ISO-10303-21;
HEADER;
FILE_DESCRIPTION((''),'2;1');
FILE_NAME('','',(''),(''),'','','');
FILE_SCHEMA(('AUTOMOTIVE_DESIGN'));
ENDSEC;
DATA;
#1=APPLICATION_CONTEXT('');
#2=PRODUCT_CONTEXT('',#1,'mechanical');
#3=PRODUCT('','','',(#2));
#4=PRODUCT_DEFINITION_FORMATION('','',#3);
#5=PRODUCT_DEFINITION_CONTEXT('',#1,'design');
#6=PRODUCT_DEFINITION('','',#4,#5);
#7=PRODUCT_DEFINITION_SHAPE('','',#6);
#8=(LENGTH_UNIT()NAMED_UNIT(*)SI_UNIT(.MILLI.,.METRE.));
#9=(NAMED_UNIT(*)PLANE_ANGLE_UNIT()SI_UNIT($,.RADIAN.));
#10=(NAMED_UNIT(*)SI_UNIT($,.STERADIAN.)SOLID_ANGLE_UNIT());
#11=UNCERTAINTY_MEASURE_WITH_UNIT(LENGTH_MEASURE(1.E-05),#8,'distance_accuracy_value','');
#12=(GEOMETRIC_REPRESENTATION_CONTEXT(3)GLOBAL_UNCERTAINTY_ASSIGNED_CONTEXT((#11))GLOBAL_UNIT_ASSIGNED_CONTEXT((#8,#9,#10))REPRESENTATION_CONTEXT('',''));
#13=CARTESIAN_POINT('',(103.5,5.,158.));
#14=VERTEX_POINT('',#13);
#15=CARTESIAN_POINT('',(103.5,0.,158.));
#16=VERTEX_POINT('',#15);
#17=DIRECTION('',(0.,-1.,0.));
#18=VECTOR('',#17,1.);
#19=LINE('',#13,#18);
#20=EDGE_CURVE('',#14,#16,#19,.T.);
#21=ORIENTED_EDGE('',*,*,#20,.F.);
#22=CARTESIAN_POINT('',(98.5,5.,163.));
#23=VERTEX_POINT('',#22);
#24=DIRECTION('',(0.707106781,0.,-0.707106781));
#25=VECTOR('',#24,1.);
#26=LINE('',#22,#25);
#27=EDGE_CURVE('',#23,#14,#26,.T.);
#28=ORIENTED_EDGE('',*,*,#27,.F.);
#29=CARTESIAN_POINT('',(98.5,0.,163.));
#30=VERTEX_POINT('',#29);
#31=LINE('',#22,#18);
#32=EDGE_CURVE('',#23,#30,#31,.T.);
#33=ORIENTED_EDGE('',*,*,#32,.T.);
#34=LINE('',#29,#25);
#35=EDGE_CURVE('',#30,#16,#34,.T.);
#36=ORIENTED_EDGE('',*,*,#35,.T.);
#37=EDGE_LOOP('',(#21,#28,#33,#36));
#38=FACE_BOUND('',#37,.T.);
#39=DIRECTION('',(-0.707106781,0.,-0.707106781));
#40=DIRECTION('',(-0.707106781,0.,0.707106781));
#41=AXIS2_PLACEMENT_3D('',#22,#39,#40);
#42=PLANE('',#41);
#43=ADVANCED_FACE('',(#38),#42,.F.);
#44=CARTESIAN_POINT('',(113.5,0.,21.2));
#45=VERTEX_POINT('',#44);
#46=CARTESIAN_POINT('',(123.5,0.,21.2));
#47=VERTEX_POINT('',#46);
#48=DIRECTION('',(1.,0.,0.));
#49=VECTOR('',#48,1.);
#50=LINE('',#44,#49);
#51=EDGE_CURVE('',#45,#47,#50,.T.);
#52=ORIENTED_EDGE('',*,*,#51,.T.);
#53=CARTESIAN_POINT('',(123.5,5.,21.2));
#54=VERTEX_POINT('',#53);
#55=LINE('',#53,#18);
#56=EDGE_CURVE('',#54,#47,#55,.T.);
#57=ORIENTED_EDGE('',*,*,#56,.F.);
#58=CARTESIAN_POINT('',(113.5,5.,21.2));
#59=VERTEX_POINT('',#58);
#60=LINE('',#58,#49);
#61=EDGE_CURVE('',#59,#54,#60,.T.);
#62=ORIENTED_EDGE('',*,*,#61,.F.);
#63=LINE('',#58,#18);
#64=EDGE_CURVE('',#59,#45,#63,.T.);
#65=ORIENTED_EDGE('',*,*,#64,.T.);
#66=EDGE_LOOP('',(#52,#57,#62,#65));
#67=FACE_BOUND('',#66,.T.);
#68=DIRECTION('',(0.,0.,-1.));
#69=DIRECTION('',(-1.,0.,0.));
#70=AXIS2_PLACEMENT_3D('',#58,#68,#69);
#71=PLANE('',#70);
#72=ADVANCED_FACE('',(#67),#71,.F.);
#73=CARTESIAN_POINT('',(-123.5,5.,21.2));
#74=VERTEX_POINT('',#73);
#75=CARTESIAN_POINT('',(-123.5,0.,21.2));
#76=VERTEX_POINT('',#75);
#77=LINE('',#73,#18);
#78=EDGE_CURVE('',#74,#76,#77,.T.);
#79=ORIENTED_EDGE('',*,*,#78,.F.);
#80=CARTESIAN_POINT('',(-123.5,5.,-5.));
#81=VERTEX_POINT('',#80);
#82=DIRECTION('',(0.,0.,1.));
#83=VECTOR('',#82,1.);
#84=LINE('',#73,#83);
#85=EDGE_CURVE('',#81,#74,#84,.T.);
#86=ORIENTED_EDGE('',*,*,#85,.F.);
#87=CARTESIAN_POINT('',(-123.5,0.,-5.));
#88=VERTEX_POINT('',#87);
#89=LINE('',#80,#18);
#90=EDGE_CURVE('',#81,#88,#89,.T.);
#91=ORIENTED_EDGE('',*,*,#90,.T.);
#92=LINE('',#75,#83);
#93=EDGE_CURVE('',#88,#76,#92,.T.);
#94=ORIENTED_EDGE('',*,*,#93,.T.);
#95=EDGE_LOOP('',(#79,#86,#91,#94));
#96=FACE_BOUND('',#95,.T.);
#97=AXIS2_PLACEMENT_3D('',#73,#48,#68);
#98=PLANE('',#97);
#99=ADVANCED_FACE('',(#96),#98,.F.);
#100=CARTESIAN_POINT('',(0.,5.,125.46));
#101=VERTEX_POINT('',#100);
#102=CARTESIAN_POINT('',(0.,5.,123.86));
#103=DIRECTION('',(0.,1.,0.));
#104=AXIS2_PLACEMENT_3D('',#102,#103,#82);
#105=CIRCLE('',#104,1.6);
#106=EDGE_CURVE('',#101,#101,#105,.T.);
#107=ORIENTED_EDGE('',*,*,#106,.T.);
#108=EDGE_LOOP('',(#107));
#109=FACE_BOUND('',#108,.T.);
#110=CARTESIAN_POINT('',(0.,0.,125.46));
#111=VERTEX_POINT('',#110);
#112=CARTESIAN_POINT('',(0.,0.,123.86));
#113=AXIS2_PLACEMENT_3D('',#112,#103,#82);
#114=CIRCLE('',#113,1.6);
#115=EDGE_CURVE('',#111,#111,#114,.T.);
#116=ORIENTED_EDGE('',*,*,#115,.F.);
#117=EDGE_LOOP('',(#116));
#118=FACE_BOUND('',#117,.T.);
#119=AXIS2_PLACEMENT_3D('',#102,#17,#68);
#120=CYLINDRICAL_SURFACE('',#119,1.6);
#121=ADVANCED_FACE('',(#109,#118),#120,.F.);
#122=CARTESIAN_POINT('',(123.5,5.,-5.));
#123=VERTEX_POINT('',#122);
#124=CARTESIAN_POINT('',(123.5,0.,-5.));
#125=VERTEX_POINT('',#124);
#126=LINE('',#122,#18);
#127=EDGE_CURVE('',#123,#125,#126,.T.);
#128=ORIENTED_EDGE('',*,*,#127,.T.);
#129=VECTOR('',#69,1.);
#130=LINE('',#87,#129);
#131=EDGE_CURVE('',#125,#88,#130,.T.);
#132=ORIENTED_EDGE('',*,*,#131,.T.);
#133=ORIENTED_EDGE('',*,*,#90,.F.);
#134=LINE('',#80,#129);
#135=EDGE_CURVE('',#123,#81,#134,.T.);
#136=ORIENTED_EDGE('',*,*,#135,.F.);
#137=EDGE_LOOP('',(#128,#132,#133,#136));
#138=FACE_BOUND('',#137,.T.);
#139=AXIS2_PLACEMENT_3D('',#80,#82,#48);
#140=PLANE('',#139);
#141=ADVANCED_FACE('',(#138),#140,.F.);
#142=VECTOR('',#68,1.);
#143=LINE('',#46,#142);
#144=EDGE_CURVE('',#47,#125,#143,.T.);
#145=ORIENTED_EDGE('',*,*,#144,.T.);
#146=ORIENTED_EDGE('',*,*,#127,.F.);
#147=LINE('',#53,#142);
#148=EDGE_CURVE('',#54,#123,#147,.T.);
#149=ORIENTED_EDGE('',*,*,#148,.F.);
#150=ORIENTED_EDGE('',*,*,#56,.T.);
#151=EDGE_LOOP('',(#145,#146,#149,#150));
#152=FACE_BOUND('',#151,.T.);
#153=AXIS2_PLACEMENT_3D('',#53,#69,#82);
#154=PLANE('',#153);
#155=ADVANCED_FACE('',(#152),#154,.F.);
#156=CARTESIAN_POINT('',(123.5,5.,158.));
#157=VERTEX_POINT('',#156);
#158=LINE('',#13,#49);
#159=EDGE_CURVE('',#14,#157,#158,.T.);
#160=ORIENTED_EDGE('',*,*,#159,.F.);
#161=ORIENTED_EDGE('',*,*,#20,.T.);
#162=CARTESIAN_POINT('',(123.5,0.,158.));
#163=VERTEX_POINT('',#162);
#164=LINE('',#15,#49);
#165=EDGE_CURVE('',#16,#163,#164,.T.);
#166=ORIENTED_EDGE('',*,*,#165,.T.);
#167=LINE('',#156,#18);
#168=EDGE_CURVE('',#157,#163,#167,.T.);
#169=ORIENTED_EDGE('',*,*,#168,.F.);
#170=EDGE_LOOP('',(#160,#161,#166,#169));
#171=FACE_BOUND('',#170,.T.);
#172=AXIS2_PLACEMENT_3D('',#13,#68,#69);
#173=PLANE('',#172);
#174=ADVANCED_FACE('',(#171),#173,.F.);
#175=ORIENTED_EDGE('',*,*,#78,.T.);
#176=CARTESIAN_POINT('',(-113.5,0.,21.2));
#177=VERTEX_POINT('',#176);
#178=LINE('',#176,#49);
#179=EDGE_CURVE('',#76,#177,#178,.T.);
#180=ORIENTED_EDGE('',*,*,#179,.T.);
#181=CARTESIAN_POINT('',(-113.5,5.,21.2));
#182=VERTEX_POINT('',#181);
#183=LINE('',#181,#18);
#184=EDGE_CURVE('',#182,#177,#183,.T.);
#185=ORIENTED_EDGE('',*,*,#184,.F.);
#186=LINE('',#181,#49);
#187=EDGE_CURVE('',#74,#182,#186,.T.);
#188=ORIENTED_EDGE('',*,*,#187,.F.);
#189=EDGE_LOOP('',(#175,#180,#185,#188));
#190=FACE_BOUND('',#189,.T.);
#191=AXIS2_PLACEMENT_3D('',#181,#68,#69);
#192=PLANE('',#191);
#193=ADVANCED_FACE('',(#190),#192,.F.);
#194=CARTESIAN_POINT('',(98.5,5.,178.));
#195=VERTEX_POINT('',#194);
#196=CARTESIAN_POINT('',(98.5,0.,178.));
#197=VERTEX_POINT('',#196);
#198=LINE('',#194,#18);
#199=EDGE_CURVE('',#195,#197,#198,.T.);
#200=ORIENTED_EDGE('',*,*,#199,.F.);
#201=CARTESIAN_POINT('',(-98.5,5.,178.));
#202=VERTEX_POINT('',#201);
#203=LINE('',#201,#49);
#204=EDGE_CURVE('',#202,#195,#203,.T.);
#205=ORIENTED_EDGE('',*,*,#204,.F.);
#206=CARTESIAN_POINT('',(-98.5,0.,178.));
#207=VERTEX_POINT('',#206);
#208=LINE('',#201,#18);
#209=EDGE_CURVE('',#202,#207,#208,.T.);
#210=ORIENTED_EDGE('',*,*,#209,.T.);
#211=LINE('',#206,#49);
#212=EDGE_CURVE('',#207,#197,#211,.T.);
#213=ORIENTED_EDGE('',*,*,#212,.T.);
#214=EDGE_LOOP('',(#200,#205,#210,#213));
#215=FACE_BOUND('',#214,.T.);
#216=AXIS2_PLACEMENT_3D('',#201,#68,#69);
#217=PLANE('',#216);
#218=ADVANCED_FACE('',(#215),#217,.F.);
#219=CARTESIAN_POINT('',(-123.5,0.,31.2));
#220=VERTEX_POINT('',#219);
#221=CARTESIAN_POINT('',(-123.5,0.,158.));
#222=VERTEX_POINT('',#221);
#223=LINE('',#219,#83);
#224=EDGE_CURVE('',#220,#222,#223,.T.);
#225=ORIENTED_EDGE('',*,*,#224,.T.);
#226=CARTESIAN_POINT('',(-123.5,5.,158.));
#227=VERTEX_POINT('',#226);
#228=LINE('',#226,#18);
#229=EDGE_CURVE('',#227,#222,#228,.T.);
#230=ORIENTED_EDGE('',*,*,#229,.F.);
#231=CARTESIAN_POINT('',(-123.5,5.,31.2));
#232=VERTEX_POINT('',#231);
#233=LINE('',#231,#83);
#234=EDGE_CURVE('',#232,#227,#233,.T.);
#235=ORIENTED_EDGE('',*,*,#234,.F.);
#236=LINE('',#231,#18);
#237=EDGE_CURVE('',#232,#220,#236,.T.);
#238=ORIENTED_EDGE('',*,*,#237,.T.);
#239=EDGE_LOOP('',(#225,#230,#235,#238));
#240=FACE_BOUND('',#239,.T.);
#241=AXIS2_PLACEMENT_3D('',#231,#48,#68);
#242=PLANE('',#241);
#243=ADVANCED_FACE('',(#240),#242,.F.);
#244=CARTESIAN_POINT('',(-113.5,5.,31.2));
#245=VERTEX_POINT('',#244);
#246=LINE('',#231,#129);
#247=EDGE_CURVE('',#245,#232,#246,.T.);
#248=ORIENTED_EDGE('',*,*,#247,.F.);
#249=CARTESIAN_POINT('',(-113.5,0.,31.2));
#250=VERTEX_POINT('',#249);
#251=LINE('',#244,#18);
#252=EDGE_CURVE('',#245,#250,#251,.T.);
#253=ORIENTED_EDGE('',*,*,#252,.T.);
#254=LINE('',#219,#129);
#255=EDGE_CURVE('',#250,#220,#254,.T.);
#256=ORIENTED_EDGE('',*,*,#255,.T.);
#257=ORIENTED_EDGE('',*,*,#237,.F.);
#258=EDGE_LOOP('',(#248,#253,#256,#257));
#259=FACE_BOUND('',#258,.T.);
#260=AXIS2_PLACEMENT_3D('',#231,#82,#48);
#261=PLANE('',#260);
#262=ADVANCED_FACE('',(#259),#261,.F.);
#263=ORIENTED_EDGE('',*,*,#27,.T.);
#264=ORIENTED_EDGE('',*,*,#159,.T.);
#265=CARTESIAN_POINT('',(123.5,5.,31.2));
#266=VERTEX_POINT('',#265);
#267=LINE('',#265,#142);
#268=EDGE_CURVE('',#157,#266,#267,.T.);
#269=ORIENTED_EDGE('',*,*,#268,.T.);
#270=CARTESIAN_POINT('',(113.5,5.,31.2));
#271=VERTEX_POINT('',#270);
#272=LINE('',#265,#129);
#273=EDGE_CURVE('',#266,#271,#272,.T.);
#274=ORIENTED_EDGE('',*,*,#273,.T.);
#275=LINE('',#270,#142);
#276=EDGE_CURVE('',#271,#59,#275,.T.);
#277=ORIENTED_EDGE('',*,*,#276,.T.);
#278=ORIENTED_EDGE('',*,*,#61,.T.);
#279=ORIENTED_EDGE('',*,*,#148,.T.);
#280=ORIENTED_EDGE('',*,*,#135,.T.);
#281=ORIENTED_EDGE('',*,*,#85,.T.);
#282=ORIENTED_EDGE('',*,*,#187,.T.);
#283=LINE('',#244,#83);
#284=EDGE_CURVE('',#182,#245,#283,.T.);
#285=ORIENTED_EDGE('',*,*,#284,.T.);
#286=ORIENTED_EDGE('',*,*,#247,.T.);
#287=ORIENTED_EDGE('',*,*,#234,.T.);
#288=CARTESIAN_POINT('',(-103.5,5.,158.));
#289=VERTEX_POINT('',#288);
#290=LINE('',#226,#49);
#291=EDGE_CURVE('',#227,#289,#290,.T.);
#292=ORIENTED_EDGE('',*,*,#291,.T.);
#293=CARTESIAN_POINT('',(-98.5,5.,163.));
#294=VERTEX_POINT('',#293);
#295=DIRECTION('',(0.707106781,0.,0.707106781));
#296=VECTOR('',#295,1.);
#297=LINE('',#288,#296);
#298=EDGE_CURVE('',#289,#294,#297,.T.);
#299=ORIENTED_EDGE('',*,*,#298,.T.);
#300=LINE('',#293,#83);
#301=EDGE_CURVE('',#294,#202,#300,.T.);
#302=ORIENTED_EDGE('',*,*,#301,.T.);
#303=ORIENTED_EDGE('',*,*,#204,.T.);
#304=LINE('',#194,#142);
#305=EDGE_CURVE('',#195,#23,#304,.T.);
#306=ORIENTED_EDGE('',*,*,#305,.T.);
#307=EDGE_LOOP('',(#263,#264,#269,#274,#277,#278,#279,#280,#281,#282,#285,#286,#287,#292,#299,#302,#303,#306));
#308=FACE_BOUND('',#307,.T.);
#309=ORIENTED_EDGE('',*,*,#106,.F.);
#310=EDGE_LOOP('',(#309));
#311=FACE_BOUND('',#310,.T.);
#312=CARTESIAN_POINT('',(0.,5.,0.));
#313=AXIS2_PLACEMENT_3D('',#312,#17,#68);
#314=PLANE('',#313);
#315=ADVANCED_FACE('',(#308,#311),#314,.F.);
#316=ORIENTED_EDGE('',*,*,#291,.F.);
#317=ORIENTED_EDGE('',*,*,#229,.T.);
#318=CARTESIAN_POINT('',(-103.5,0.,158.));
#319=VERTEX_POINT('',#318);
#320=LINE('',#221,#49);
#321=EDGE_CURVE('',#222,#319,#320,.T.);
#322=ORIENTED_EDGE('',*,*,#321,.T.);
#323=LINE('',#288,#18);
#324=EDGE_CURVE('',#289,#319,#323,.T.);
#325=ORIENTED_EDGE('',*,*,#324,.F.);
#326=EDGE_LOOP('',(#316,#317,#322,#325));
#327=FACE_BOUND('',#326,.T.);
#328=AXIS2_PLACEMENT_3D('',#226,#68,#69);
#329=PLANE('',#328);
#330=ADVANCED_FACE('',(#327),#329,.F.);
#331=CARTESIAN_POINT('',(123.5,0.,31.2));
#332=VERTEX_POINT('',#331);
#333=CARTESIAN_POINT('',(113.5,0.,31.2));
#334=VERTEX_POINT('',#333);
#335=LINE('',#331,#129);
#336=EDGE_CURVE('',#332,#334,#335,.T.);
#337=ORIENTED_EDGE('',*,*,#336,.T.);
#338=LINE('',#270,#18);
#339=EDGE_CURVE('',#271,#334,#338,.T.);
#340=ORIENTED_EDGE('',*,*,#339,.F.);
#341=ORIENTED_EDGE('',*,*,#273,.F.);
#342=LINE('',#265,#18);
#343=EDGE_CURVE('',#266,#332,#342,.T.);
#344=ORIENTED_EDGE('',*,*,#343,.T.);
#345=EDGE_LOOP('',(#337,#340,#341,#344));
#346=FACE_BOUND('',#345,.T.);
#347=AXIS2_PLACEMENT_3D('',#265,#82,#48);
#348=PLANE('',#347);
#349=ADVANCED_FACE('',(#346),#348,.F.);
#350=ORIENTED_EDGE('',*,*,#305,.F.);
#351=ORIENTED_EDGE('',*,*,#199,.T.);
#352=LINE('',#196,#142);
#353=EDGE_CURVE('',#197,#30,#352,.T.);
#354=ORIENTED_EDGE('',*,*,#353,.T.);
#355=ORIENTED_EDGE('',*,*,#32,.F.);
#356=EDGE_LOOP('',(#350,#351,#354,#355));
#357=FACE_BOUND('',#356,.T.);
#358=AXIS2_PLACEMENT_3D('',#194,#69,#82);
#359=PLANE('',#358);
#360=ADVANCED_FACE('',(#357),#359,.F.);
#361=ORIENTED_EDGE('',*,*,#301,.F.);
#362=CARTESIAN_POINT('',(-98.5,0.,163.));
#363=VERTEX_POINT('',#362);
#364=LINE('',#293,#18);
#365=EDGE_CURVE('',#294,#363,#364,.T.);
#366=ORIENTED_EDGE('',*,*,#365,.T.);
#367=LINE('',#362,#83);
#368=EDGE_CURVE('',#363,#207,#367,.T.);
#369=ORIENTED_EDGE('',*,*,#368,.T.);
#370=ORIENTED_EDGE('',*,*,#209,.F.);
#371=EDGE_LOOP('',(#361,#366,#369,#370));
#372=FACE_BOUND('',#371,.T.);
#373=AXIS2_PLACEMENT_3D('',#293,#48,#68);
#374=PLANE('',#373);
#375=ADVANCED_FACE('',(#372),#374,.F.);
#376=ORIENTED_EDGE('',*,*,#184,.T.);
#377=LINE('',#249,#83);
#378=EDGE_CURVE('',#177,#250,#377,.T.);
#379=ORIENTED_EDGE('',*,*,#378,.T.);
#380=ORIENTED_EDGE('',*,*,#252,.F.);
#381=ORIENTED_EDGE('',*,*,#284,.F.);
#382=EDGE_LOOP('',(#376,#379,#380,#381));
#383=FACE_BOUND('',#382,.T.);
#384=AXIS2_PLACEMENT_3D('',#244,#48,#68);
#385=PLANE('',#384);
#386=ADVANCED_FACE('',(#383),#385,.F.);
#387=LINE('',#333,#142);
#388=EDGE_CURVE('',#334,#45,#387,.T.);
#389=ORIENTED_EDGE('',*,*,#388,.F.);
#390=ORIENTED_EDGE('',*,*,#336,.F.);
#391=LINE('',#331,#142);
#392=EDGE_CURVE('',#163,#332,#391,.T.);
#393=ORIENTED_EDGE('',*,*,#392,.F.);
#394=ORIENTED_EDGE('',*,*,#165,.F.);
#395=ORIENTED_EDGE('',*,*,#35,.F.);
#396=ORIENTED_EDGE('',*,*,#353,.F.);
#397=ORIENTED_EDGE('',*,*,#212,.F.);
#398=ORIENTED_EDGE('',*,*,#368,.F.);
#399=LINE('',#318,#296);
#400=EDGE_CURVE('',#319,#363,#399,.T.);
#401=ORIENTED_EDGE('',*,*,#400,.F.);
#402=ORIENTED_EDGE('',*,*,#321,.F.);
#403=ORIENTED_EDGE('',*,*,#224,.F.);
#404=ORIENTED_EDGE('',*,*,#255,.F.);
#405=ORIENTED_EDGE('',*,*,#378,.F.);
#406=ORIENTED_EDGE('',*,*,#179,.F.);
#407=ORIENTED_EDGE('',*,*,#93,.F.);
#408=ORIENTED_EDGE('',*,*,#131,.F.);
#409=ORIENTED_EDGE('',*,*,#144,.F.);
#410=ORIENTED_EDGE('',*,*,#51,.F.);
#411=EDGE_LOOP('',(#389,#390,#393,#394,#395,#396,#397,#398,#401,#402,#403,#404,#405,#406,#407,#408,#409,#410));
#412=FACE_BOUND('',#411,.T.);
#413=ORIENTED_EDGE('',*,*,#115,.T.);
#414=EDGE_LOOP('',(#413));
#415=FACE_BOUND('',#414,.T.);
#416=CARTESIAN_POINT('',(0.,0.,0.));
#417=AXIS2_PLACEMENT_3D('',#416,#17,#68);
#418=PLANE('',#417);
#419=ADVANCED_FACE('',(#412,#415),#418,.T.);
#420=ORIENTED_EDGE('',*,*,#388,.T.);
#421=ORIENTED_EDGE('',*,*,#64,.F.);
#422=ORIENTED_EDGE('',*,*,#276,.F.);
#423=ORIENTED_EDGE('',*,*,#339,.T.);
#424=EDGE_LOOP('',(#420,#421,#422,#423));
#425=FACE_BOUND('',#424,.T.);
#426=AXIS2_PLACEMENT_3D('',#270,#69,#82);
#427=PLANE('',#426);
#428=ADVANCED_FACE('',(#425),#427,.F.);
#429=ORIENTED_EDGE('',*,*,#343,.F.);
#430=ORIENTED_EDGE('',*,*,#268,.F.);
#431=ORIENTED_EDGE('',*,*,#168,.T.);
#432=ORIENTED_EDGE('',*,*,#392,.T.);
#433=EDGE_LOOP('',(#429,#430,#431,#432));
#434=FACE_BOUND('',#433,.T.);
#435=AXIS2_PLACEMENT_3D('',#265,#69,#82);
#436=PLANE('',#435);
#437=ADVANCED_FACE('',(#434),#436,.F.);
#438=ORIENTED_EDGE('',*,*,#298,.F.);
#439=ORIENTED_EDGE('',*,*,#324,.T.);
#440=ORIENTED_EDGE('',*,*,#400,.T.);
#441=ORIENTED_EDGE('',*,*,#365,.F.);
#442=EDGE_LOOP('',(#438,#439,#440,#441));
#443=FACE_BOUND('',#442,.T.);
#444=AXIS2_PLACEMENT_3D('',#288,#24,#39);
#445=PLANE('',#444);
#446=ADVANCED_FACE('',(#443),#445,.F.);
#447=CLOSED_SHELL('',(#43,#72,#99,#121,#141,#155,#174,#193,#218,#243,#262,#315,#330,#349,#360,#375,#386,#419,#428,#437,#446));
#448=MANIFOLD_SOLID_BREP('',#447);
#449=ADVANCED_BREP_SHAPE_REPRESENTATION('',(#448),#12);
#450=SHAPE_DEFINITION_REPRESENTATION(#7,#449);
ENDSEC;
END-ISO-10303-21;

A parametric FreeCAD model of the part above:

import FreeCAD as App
import Part
import Sketcher


def add_polygon(sketch, points):
    """Adds a closed chain of lines whose ends are joined by coincident constraints."""
    first, n = sketch.GeometryCount, len(points)
    for a, b in zip(points, points[1:] + points[:1]):
        sketch.addGeometry(Part.LineSegment(App.Vector(*a, 0), App.Vector(*b, 0)), False)
    for i in range(n):
        sketch.addConstraint(Sketcher.Constraint("Coincident", first + i, 2, first + (i + 1) % n, 1))

doc = App.newDocument("Part")
body = doc.addObject("PartDesign::Body", "Body")

# Sketch on XZ plane
sketch1 = body.newObject("Sketcher::SketchObject", "Sketch")
sketch1.AttachmentSupport = (doc.getObject("XZ_Plane"), [""])
sketch1.MapMode = "FlatFace"
add_polygon(sketch1, [(123.5, -5), (-123.5, -5), (-123.5, 21.2), (-113.5, 21.2), (-113.5, 31.2), (-123.5, 31.2), (-123.5, 158), (-103.5, 158), (-98.5, 163), (-98.5, 178), (98.5, 178), (98.5, 163), (103.5, 158), (123.5, 158), (123.5, 31.2), (113.5, 31.2), (113.5, 21.2), (123.5, 21.2)])  # lines 0-17
sketch1.addGeometry(Part.Circle(App.Vector(0, 123.9, 0), App.Vector(0, 0, 1), 1.6), False)  # 18
sketch1.addConstraint([
    Sketcher.Constraint("Horizontal", 0),
    Sketcher.Constraint("Vertical", 1),
    Sketcher.Constraint("Horizontal", 2),
    Sketcher.Constraint("Vertical", 3),
    Sketcher.Constraint("Horizontal", 4),
    Sketcher.Constraint("Vertical", 5),
    Sketcher.Constraint("Horizontal", 6),
    Sketcher.Constraint("Vertical", 8),
    Sketcher.Constraint("Horizontal", 9),
    Sketcher.Constraint("Vertical", 10),
    Sketcher.Constraint("Horizontal", 12),
    Sketcher.Constraint("Vertical", 13),
    Sketcher.Constraint("Horizontal", 14),
    Sketcher.Constraint("Vertical", 15),
    Sketcher.Constraint("Horizontal", 16),
    Sketcher.Constraint("Vertical", 17),
    Sketcher.Constraint("Symmetric", 7, 2, 10, 2, -2),
    Sketcher.Constraint("Symmetric", 6, 2, 11, 2, -2),
    Sketcher.Constraint("Symmetric", 4, 2, 13, 2, -2),
    Sketcher.Constraint("Symmetric", 2, 2, 15, 2, -2),
    Sketcher.Constraint("PointOnObject", 18, 3, -2),
    Sketcher.Constraint("Perpendicular", 7, 11),
    Sketcher.Constraint("Vertical", 1, 2, 4, 2),
    Sketcher.Constraint("Vertical", 13, 2, 16, 2),
    Sketcher.Constraint("Equal", 16, 3),
    Sketcher.Constraint("Diameter", 18, 3.2),
    Sketcher.Constraint("DistanceX", 0, 2, 0, 1, 247.0),
    Sketcher.Constraint("DistanceX", 2, 1, 2, 2, 10.0),
    Sketcher.Constraint("DistanceX", 6, 1, 6, 2, 20.0),
    Sketcher.Constraint("DistanceX", 9, 1, 9, 2, 197.0),
    Sketcher.Constraint("DistanceY", 8, 1, 8, 2, 15.0),
    Sketcher.Constraint("DistanceY", 1, 1, 1, 2, 26.2),
    Sketcher.Constraint("DistanceY", 5, 1, 5, 2, 126.8),
    Sketcher.Constraint("DistanceY", 0, 2, -1, 1, 5.0),
    Sketcher.Constraint("DistanceY", -1, 1, 18, 3, 123.86),
])
pad1 = body.newObject("PartDesign::Pad", "Pad")
pad1.Profile = sketch1
pad1.Length = 5
pad1.Reversed = True

doc.recompute()
